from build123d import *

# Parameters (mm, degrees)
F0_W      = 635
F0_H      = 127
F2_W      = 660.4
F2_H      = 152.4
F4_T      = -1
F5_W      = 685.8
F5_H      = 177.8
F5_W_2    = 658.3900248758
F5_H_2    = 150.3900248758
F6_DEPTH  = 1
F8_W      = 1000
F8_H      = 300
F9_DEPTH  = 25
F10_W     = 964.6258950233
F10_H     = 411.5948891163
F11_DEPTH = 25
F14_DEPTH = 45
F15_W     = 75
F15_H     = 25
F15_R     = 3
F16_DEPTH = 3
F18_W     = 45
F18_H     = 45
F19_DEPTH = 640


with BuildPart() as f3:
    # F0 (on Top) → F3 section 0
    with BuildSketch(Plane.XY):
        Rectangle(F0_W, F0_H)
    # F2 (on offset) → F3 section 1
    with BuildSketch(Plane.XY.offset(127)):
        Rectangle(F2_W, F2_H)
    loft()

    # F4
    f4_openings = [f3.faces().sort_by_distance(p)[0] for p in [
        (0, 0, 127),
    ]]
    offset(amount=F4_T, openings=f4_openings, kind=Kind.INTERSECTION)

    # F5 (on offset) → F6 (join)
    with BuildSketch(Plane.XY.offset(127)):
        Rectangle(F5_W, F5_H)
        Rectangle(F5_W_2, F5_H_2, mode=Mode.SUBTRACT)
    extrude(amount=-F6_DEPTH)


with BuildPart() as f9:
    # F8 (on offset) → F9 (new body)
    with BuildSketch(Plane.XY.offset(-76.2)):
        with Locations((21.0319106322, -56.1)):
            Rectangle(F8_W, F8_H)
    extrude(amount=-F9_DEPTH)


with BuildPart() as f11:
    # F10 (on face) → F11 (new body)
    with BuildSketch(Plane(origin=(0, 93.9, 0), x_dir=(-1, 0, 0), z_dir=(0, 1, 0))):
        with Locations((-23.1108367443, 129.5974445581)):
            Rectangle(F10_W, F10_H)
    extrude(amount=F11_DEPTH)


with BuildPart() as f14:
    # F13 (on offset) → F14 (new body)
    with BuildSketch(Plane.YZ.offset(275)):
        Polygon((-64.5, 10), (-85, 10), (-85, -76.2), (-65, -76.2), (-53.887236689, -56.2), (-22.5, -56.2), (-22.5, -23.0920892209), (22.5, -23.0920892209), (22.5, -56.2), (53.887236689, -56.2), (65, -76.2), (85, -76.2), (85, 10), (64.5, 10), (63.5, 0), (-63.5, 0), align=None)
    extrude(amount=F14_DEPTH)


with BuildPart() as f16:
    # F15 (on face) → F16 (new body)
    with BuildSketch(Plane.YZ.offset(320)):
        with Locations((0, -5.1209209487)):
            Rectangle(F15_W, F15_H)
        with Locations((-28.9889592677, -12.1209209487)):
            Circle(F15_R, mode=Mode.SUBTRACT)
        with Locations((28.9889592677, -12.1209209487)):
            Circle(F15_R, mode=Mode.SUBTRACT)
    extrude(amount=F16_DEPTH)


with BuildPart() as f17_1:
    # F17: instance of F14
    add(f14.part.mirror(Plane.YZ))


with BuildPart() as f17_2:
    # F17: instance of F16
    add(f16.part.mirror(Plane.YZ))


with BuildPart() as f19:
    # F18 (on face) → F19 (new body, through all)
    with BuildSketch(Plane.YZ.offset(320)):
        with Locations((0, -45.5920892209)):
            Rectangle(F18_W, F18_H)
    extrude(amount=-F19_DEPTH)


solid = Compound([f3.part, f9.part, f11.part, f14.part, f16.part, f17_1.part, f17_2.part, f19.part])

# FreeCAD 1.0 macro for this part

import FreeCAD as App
import Part
import Sketcher


def faces_at(feature, points):
    """Names of the faces that lie closest to the given points."""
    faces = feature.Shape.Faces
    near = lambda p: min(range(len(faces)), key=lambda i: faces[i].distToShape(Part.Vertex(*p))[0])
    return sorted({f"Face{near(p) + 1}" for p in points})


def add_polygon(sketch, points):
    """Adds a closed chain of lines whose ends are joined by coincident constraints."""
    first, n = sketch.GeometryCount, len(points)
    for a, b in zip(points, points[1:] + points[:1]):
        sketch.addGeometry(Part.LineSegment(App.Vector(*a, 0), App.Vector(*b, 0)), False)
    for i in range(n):
        sketch.addConstraint(Sketcher.Constraint("Coincident", first + i, 2, first + (i + 1) % n, 1))

doc = App.newDocument("Part")
body = doc.addObject("PartDesign::Body", "Body")

# Sketch on XY plane
sketch1 = body.newObject("Sketcher::SketchObject", "Sketch")
sketch1.AttachmentSupport = (doc.getObject("XY_Plane"), [""])
sketch1.MapMode = "FlatFace"
add_polygon(sketch1, [(-318, 64), (-318, -64), (318, -64), (318, 64)])  # lines 0-3
sketch1.addConstraint(Sketcher.Constraint("Vertical", 0))
sketch1.addConstraint(Sketcher.Constraint("Horizontal", 1))
sketch1.addConstraint(Sketcher.Constraint("Vertical", 2))
sketch1.addConstraint(Sketcher.Constraint("Horizontal", 3))
sketch1.addConstraint(Sketcher.Constraint("Symmetric", 0, 2, 2, 2, -1, 1))
sketch1.addConstraint(Sketcher.Constraint("DistanceX", 1, 1, 1, 2, 635.0))
sketch1.addConstraint(Sketcher.Constraint("DistanceY", 0, 2, 0, 1, 127.0))

# Sketch on XY plane
sketch2 = body.newObject("Sketcher::SketchObject", "Sketch001")
sketch2.AttachmentSupport = (doc.getObject("XY_Plane"), [""])
sketch2.MapMode = "FlatFace"
sketch2.AttachmentOffset = App.Placement(App.Vector(0, 0, 127), App.Rotation())
add_polygon(sketch2, [(-330, 76), (-330, -76), (330, -76), (330, 76)])  # lines 0-3
sketch2.addConstraint(Sketcher.Constraint("Vertical", 0))
sketch2.addConstraint(Sketcher.Constraint("Horizontal", 1))
sketch2.addConstraint(Sketcher.Constraint("Vertical", 2))
sketch2.addConstraint(Sketcher.Constraint("Horizontal", 3))
sketch2.addConstraint(Sketcher.Constraint("Symmetric", 0, 2, 2, 2, -1, 1))
sketch2.addConstraint(Sketcher.Constraint("DistanceX", 1, 1, 1, 2, 660.4))
sketch2.addConstraint(Sketcher.Constraint("DistanceY", 0, 2, 0, 1, 152.4))

additiveloft = body.newObject("PartDesign::AdditiveLoft", "AdditiveLoft")
additiveloft.Profile = sketch1
additiveloft.Sections = [sketch2]
doc.recompute()

thickness = body.newObject("PartDesign::Thickness", "Thickness")
thickness.Base = (additiveloft, faces_at(additiveloft, [(0, 0, 127)]))
thickness.Value = 1
thickness.Reversed = True
thickness.Join = "Intersection"

# Sketch on XY plane
sketch3 = body.newObject("Sketcher::SketchObject", "Sketch002")
sketch3.AttachmentSupport = (doc.getObject("XY_Plane"), [""])
sketch3.MapMode = "FlatFace"
sketch3.AttachmentOffset = App.Placement(App.Vector(0, 0, 127), App.Rotation())
add_polygon(sketch3, [(-343, 89), (-343, -89), (343, -89), (343, 89)])  # lines 0-3
add_polygon(sketch3, [(329, -75), (-329, -75), (-329, 75), (329, 75)])  # lines 4-7
sketch3.addConstraint(Sketcher.Constraint("Vertical", 0))
sketch3.addConstraint(Sketcher.Constraint("Horizontal", 1))
sketch3.addConstraint(Sketcher.Constraint("Vertical", 2))
sketch3.addConstraint(Sketcher.Constraint("Horizontal", 3))
sketch3.addConstraint(Sketcher.Constraint("Horizontal", 4))
sketch3.addConstraint(Sketcher.Constraint("Vertical", 5))
sketch3.addConstraint(Sketcher.Constraint("Horizontal", 6))
sketch3.addConstraint(Sketcher.Constraint("Vertical", 7))
sketch3.addConstraint(Sketcher.Constraint("Symmetric", 0, 2, 2, 2, -1, 1))
sketch3.addConstraint(Sketcher.Constraint("Symmetric", 4, 2, 6, 2, -1, 1))
sketch3.addConstraint(Sketcher.Constraint("DistanceX", 1, 1, 1, 2, 685.8))
sketch3.addConstraint(Sketcher.Constraint("DistanceY", 0, 2, 0, 1, 177.8))
sketch3.addConstraint(Sketcher.Constraint("DistanceX", 4, 2, 4, 1, 658.390025))
sketch3.addConstraint(Sketcher.Constraint("DistanceY", 5, 1, 5, 2, 150.390025))
pad1 = body.newObject("PartDesign::Pad", "Pad")
pad1.Profile = sketch3
pad1.Length = 1
pad1.Reversed = True
body2 = doc.addObject("PartDesign::Body", "Body001")

# Sketch on XY plane
sketch4 = body2.newObject("Sketcher::SketchObject", "Sketch003")
sketch4.AttachmentSupport = (doc.getObject("XY_Plane001"), [""])
sketch4.MapMode = "FlatFace"
sketch4.AttachmentOffset = App.Placement(App.Vector(0, 0, -76.2), App.Rotation())
add_polygon(sketch4, [(-479, 94), (-479, -206), (521, -206), (521, 94)])  # lines 0-3
sketch4.addConstraint(Sketcher.Constraint("Vertical", 0))
sketch4.addConstraint(Sketcher.Constraint("Horizontal", 1))
sketch4.addConstraint(Sketcher.Constraint("Vertical", 2))
sketch4.addConstraint(Sketcher.Constraint("Horizontal", 3))
sketch4.addConstraint(Sketcher.Constraint("DistanceX", 1, 1, 1, 2, 1000.0))
sketch4.addConstraint(Sketcher.Constraint("DistanceY", 0, 2, 0, 1, 300.0))
sketch4.addConstraint(Sketcher.Constraint("DistanceY", 0, 2, -1, 1, 206.1))
sketch4.addConstraint(Sketcher.Constraint("DistanceX", 0, 2, -1, 1, 478.968089))
pad2 = body2.newObject("PartDesign::Pad", "Pad001")
pad2.Profile = sketch4
pad2.Length = 25
pad2.Reversed = True
body3 = doc.addObject("PartDesign::Body", "Body002")

# Sketch on XZ plane
sketch5 = body3.newObject("Sketcher::SketchObject", "Sketch004")
sketch5.AttachmentSupport = (doc.getObject("XZ_Plane002"), [""])
sketch5.MapMode = "FlatFace"
sketch5.AttachmentOffset = App.Placement(App.Vector(0, 0, -93.9), App.Rotation())
add_polygon(sketch5, [(505, 335), (505, -76), (-459, -76), (-459, 335)])  # lines 0-3
sketch5.addConstraint(Sketcher.Constraint("Vertical", 0))
sketch5.addConstraint(Sketcher.Constraint("Horizontal", 1))
sketch5.addConstraint(Sketcher.Constraint("Vertical", 2))
sketch5.addConstraint(Sketcher.Constraint("Horizontal", 3))
sketch5.addConstraint(Sketcher.Constraint("DistanceY", 0, 2, -1, 1, 76.2))
sketch5.addConstraint(Sketcher.Constraint("DistanceY", 0, 2, 0, 1, 411.594889))
sketch5.addConstraint(Sketcher.Constraint("DistanceX", 1, 2, 1, 1, 964.625895))
sketch5.addConstraint(Sketcher.Constraint("DistanceX", 1, 2, -1, 1, 459.202111))
pad3 = body3.newObject("PartDesign::Pad", "Pad002")
pad3.Profile = sketch5
pad3.Length = 25
pad3.Reversed = True
body4 = doc.addObject("PartDesign::Body", "Body003")

# Sketch on YZ plane
sketch6 = body4.newObject("Sketcher::SketchObject", "Sketch005")
sketch6.AttachmentSupport = (doc.getObject("YZ_Plane003"), [""])
sketch6.MapMode = "FlatFace"
sketch6.AttachmentOffset = App.Placement(App.Vector(0, 0, 275), App.Rotation())
add_polygon(sketch6, [(-64, 10), (-85, 10), (-85, -76), (-65, -76), (-54, -56), (-22, -56), (-22, -23), (22, -23), (22, -56), (54, -56), (65, -76), (85, -76), (85, 10), (64, 10), (64, 0), (-64, 0)])  # lines 0-15
sketch6.addConstraint(Sketcher.Constraint("Horizontal", 0))
sketch6.addConstraint(Sketcher.Constraint("Vertical", 1))
sketch6.addConstraint(Sketcher.Constraint("Horizontal", 2))
sketch6.addConstraint(Sketcher.Constraint("Horizontal", 4))
sketch6.addConstraint(Sketcher.Constraint("Vertical", 5))
sketch6.addConstraint(Sketcher.Constraint("Horizontal", 6))
sketch6.addConstraint(Sketcher.Constraint("Vertical", 7))
sketch6.addConstraint(Sketcher.Constraint("Horizontal", 8))
sketch6.addConstraint(Sketcher.Constraint("Horizontal", 10))
sketch6.addConstraint(Sketcher.Constraint("Vertical", 11))
sketch6.addConstraint(Sketcher.Constraint("Horizontal", 12))
sketch6.addConstraint(Sketcher.Constraint("Horizontal", 14))
sketch6.addConstraint(Sketcher.Constraint("Symmetric", 13, 2, 14, 2, -1, 1))
sketch6.addConstraint(Sketcher.Constraint("Symmetric", 4, 2, 7, 2, -2))
sketch6.addConstraint(Sketcher.Constraint("Symmetric", 2, 2, 9, 2, -2))
sketch6.addConstraint(Sketcher.Constraint("Symmetric", 0, 2, 11, 2, -2))
sketch6.addConstraint(Sketcher.Constraint("Equal", 4, 8))
sketch6.addConstraint(Sketcher.Constraint("Equal", 0, 12))
sketch6.addConstraint(Sketcher.Constraint("DistanceX", 2, 1, 2, 2, 20.0))
sketch6.addConstraint(Sketcher.Constraint("DistanceX", 6, 1, 6, 2, 45.0))
sketch6.addConstraint(Sketcher.Constraint("DistanceX", 14, 2, 14, 1, 127.0))
sketch6.addConstraint(Sketcher.Constraint("DistanceX", 0, 2, 0, 1, 20.5))
sketch6.addConstraint(Sketcher.Constraint("DistanceY", 1, 2, 1, 1, 86.2))
sketch6.addConstraint(Sketcher.Constraint("DistanceX", 0, 2, -1, 1, 85.0))
sketch6.addConstraint(Sketcher.Constraint("DistanceY", -1, 1, 0, 2, 10.0))
sketch6.addConstraint(Sketcher.Constraint("DistanceY", 2, 2, 3, 2, 20.0))
sketch6.addConstraint(Sketcher.Constraint("DistanceY", 5, 1, 5, 2, 33.107911))
sketch6.addConstraint(Sketcher.Constraint("Distance", 3, 22.879981))
pad4 = body4.newObject("PartDesign::Pad", "Pad003")
pad4.Profile = sketch6
pad4.Length = 45
body5 = doc.addObject("PartDesign::Body", "Body004")

# Sketch on YZ plane
sketch7 = body5.newObject("Sketcher::SketchObject", "Sketch006")
sketch7.AttachmentSupport = (doc.getObject("YZ_Plane004"), [""])
sketch7.MapMode = "FlatFace"
sketch7.AttachmentOffset = App.Placement(App.Vector(0, 0, 320), App.Rotation())
add_polygon(sketch7, [(-37.5, 7.4), (-37.5, -17.6), (37.5, -17.6), (37.5, 7.4)])  # lines 0-3
sketch7.addGeometry(Part.Circle(App.Vector(-29, -12.1, 0), App.Vector(0, 0, 1), 3), False)  # 4
sketch7.addGeometry(Part.Circle(App.Vector(29, -12.1, 0), App.Vector(0, 0, 1), 3), False)  # 5
sketch7.addConstraint(Sketcher.Constraint("Vertical", 0))
sketch7.addConstraint(Sketcher.Constraint("Horizontal", 1))
sketch7.addConstraint(Sketcher.Constraint("Vertical", 2))
sketch7.addConstraint(Sketcher.Constraint("Horizontal", 3))
sketch7.addConstraint(Sketcher.Constraint("Equal", 4, 5))
sketch7.addConstraint(Sketcher.Constraint("Symmetric", 4, 3, 5, 3, -2))
sketch7.addConstraint(Sketcher.Constraint("Diameter", 4, 6.0))
sketch7.addConstraint(Sketcher.Constraint("DistanceX", 1, 1, 1, 2, 75.0))
sketch7.addConstraint(Sketcher.Constraint("DistanceY", 0, 2, 0, 1, 25.0))
sketch7.addConstraint(Sketcher.Constraint("DistanceX", 0, 2, -1, 1, 37.5))
sketch7.addConstraint(Sketcher.Constraint("DistanceY", 0, 2, 4, 3, 5.5))
sketch7.addConstraint(Sketcher.Constraint("DistanceX", 4, 3, -1, 1, 28.988959))
sketch7.addConstraint(Sketcher.Constraint("DistanceY", 4, 3, -1, 1, 12.120921))
pad5 = body5.newObject("PartDesign::Pad", "Pad004")
pad5.Profile = sketch7
pad5.Length = 3
body6 = doc.addObject("PartDesign::Body", "Body005")
doc.recompute()

mirroring = doc.addObject("Part::Mirroring", "Mirroring")
mirroring.Source = body4
mirroring.Base = App.Vector(0, 0, 0)
mirroring.Normal = App.Vector(1, 0, 0)
body6.BaseFeature = mirroring
doc.recompute()
body7 = doc.addObject("PartDesign::Body", "Body006")
doc.recompute()

mirroring2 = doc.addObject("Part::Mirroring", "Mirroring001")
mirroring2.Source = body5
mirroring2.Base = App.Vector(0, 0, 0)
mirroring2.Normal = App.Vector(1, 0, 0)
body7.BaseFeature = mirroring2
doc.recompute()
body8 = doc.addObject("PartDesign::Body", "Body007")

# Sketch on YZ plane
sketch8 = body8.newObject("Sketcher::SketchObject", "Sketch007")
sketch8.AttachmentSupport = (doc.getObject("YZ_Plane007"), [""])
sketch8.MapMode = "FlatFace"
sketch8.AttachmentOffset = App.Placement(App.Vector(0, 0, 320), App.Rotation())
add_polygon(sketch8, [(-22, -23), (-22, -68), (22, -68), (22, -23)])  # lines 0-3
sketch8.addConstraint(Sketcher.Constraint("Vertical", 0))
sketch8.addConstraint(Sketcher.Constraint("Horizontal", 1))
sketch8.addConstraint(Sketcher.Constraint("Vertical", 2))
sketch8.addConstraint(Sketcher.Constraint("Horizontal", 3))
sketch8.addConstraint(Sketcher.Constraint("Equal", 3, 0))
sketch8.addConstraint(Sketcher.Constraint("DistanceX", 1, 1, 1, 2, 45.0))
sketch8.addConstraint(Sketcher.Constraint("DistanceX", 0, 2, -1, 1, 22.5))
sketch8.addConstraint(Sketcher.Constraint("DistanceY", 0, 2, -1, 1, 68.092089))
pad6 = body8.newObject("PartDesign::Pad", "Pad005")
pad6.Profile = sketch8
pad6.Length = 640
pad6.Reversed = True
mirroring.Visibility = False
mirroring2.Visibility = False

doc.recompute()
